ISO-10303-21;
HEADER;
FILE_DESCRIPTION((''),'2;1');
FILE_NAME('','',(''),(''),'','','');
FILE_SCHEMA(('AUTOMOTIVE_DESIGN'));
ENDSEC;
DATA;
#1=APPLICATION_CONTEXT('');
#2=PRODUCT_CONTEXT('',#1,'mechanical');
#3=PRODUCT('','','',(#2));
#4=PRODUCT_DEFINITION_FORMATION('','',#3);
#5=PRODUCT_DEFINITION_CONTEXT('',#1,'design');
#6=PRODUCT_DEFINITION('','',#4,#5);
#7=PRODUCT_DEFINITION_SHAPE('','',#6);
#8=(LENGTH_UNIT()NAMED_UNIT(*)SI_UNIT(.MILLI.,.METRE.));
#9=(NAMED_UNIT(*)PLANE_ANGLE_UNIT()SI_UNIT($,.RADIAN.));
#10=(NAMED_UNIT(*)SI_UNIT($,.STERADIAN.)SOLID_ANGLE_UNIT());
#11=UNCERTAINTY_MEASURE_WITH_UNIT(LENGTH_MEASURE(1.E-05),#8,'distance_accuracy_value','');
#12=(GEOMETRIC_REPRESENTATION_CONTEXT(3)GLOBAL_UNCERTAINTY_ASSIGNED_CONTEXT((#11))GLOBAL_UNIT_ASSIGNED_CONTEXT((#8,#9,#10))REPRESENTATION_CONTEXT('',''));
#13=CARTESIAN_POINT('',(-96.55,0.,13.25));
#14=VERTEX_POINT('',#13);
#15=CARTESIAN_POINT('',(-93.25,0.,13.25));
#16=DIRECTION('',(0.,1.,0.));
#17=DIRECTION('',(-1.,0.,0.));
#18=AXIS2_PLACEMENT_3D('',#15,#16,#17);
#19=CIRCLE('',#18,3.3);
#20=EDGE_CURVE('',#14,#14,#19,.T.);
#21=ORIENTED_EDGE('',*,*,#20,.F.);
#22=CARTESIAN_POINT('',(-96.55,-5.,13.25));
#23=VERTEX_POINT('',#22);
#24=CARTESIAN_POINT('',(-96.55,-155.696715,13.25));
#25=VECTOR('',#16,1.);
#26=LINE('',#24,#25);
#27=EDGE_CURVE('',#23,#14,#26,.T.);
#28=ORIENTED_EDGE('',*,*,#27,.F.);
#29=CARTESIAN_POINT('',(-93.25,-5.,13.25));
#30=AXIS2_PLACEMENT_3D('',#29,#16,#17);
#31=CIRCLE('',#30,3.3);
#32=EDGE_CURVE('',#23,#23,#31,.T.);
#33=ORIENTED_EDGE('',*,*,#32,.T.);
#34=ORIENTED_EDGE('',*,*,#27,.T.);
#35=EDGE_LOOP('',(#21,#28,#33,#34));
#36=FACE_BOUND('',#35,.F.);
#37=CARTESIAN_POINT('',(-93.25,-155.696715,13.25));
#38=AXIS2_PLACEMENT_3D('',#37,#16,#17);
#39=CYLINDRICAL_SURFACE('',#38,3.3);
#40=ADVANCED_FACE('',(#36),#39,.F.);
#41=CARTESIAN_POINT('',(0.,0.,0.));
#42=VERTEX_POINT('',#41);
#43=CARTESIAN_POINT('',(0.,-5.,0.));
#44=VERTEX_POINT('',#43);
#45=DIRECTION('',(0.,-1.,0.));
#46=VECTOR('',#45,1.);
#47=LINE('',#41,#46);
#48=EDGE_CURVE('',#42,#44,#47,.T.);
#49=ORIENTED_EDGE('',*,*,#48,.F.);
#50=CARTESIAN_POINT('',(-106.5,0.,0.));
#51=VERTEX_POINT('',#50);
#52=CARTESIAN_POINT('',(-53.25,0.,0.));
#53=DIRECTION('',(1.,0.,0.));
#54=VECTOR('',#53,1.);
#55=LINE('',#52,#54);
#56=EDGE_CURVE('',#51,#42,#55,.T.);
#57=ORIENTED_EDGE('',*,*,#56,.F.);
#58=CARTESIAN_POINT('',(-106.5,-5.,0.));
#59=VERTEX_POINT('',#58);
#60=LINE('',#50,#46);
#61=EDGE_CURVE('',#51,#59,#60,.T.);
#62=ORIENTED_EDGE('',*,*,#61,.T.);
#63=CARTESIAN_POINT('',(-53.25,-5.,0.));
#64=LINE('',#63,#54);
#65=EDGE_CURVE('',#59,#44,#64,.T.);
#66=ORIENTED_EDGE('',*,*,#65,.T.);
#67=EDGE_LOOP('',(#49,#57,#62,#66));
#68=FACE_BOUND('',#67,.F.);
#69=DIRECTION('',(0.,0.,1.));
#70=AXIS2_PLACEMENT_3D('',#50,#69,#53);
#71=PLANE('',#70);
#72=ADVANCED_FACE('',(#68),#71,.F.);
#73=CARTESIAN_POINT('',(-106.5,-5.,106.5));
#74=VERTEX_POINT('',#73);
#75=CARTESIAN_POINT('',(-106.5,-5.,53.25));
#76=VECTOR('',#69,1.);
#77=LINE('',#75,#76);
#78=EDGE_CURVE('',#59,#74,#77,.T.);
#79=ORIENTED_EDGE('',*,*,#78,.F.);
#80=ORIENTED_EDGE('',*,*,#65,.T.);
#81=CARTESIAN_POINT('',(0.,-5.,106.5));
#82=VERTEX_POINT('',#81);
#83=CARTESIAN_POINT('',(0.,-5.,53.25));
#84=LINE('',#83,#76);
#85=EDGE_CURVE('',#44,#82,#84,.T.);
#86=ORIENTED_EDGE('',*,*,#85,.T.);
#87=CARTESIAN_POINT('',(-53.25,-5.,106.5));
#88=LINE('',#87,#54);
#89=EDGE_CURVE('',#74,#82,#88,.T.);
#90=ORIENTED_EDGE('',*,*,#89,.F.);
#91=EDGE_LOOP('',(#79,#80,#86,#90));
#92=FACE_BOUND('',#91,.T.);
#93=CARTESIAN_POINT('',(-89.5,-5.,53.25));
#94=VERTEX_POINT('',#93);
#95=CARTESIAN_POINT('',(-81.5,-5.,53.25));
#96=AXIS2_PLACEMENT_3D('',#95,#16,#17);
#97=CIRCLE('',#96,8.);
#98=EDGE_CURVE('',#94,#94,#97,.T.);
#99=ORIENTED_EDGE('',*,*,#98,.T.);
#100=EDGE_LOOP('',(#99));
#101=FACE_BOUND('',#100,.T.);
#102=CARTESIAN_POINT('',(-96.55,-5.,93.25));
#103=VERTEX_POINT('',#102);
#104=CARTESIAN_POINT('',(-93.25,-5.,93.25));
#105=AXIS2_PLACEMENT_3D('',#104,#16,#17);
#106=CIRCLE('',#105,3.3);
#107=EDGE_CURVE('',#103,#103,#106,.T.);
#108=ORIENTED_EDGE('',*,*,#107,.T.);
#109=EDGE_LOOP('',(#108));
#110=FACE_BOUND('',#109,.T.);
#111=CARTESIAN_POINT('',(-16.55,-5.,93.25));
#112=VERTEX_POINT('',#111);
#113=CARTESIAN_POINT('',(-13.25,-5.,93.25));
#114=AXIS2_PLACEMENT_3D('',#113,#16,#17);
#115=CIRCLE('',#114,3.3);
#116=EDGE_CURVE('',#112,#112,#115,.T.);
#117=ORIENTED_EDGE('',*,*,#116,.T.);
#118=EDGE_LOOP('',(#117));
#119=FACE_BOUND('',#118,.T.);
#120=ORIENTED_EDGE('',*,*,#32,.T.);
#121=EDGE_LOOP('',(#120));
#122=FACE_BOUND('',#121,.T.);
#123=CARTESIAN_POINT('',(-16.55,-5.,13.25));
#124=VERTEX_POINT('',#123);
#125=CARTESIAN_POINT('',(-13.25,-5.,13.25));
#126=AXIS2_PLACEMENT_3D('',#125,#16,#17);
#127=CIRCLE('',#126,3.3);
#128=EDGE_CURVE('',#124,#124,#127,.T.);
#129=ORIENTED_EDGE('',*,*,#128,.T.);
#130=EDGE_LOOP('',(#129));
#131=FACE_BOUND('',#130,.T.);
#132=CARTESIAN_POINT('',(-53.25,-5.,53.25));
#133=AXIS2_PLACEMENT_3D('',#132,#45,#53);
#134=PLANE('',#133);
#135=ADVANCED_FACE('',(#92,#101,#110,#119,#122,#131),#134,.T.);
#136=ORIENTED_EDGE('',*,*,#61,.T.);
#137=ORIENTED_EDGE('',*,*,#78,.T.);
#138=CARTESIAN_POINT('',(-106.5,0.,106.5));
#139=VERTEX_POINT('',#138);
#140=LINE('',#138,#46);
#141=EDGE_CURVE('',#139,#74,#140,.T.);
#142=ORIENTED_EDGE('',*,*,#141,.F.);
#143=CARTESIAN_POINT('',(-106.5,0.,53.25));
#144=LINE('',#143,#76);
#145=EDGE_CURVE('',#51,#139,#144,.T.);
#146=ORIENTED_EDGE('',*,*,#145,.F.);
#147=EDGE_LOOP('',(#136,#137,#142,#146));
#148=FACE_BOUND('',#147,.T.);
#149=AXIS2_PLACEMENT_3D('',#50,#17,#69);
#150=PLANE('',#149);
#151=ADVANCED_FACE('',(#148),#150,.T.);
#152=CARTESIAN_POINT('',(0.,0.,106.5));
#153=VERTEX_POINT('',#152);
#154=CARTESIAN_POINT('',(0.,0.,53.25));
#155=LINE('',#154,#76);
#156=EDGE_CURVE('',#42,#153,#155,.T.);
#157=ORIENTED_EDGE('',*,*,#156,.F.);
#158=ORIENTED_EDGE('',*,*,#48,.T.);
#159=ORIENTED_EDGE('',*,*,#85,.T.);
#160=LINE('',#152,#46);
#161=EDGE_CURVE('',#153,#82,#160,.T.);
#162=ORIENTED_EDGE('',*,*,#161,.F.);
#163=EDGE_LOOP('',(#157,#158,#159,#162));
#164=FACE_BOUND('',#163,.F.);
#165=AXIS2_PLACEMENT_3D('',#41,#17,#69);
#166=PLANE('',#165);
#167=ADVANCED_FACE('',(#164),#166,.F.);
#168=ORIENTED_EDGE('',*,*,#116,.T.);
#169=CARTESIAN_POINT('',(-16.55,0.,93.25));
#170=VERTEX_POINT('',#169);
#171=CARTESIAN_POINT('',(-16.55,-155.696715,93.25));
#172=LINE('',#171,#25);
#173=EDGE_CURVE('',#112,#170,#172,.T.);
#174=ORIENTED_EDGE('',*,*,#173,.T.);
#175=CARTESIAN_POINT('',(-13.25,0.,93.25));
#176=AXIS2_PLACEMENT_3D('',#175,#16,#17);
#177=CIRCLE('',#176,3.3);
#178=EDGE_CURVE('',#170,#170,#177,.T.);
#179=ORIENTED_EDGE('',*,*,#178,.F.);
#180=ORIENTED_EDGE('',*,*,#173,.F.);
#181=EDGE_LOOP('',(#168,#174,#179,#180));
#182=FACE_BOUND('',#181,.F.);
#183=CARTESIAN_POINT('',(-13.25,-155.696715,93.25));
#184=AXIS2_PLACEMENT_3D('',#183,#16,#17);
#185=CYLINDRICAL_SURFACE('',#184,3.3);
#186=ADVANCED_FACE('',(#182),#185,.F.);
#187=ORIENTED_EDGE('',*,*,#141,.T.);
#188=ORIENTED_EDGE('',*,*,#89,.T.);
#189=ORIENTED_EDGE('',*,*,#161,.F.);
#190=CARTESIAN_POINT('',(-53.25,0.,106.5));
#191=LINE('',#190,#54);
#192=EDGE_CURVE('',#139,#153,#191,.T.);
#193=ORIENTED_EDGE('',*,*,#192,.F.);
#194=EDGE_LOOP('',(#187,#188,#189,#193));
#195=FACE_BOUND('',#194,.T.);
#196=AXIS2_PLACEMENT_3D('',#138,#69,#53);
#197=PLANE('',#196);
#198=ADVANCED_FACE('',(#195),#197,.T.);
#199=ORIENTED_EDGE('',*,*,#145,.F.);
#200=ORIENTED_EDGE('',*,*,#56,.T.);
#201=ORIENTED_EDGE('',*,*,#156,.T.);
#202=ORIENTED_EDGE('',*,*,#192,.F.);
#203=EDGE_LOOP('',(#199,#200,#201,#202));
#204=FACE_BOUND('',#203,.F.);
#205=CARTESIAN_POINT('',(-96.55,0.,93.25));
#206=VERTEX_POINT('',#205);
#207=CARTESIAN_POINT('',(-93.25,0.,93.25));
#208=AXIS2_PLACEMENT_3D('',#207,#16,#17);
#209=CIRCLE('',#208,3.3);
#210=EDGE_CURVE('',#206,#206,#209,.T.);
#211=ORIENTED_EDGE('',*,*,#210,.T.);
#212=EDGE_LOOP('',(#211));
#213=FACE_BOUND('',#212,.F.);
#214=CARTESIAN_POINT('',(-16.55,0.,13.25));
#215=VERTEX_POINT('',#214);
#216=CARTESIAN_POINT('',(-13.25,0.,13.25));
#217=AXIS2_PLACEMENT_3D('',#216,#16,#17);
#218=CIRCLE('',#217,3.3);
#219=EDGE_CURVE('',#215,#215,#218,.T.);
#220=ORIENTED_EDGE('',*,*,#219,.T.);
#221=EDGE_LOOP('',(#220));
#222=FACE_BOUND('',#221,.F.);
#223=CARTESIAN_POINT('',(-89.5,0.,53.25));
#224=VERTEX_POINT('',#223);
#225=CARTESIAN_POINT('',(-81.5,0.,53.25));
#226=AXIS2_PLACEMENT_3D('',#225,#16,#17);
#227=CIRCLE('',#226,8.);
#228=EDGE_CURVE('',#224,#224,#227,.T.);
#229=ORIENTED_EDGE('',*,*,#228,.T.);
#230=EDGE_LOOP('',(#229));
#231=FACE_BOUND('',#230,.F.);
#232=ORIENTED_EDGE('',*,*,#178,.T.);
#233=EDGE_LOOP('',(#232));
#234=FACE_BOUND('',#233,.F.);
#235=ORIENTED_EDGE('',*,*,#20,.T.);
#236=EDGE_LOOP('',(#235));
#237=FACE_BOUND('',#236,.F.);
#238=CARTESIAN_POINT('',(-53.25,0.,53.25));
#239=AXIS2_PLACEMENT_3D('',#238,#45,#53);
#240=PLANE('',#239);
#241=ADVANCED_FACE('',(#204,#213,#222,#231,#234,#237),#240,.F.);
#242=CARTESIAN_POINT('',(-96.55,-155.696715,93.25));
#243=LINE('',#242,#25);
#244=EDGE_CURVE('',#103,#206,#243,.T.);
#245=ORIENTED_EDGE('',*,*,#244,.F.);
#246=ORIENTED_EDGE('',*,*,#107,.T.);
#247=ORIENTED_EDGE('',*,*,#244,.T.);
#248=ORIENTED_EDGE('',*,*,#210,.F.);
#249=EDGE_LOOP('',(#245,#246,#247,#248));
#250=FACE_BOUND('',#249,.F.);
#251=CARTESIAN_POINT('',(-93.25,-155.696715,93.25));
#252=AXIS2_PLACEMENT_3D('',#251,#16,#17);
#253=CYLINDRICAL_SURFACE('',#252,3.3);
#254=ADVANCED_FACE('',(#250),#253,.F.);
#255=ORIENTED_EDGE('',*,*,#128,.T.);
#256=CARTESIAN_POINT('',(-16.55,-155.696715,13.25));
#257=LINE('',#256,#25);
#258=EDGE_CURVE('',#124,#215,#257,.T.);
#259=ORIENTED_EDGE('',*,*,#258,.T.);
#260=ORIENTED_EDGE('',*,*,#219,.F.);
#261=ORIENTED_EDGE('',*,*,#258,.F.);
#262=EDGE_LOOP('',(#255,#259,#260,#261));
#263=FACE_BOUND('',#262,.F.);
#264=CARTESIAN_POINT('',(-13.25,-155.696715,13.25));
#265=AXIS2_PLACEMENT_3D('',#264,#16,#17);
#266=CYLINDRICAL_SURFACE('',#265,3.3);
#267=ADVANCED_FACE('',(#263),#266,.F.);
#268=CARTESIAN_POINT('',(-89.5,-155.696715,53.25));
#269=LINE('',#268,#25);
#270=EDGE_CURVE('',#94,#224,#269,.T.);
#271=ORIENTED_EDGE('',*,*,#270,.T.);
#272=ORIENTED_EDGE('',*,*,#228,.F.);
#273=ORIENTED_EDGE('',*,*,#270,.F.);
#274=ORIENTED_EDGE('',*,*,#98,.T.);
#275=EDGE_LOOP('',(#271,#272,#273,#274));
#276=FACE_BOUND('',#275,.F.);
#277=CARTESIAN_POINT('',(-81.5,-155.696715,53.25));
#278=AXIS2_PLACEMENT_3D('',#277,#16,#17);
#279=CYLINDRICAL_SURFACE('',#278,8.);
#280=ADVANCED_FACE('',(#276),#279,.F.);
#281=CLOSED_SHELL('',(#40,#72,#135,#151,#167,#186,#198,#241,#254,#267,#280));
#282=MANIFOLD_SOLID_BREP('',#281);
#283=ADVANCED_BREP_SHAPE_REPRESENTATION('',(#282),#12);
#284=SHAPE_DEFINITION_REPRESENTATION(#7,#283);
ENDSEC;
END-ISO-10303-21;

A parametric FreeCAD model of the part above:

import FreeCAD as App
import Part
import Sketcher

V = App.Vector
Q = App.Units.Quantity


def add_polygon(sketch, points):
    """Adds a closed chain of lines whose ends are joined by coincident constraints."""
    first, n = sketch.GeometryCount, len(points)
    for a, b in zip(points, points[1:] + points[:1]):
        sketch.addGeometry(Part.LineSegment(App.Vector(*a, 0), App.Vector(*b, 0)), False)
    for i in range(n):
        sketch.addConstraint(Sketcher.Constraint("Coincident", first + i, 2, first + (i + 1) % n, 1))

doc = App.newDocument("Part")
body = doc.addObject("PartDesign::Body", "Body")

# Sketch on XZ plane
sketch1 = body.newObject("Sketcher::SketchObject", "Sketch")
sketch1.AttachmentSupport = (doc.getObject("XZ_Plane"), [""])
sketch1.MapMode = "FlatFace"
add_polygon(sketch1, [(-106, 106), (-106, 0), (0, 0), (0, 106)])  # lines 0-3
sketch1.addConstraint([
    Sketcher.Constraint("Vertical", 0),
    Sketcher.Constraint("Horizontal", 1),
    Sketcher.Constraint("Vertical", 2),
    Sketcher.Constraint("Horizontal", 3),
    Sketcher.Constraint("Coincident", 1, 2, -1, 1),
    Sketcher.Constraint("Equal", 3, 0),
    Sketcher.Constraint("DistanceX", 1, 1, 1, 2, Q("106.5 mm")),
])
pad1 = body.newObject("PartDesign::Pad", "Pad")
pad1.Profile = sketch1
pad1.Length = 5

# Sketch on XZ plane
sketch2 = body.newObject("Sketcher::SketchObject", "Sketch001")
sketch2.AttachmentSupport = (doc.getObject("XZ_Plane"), [""])
sketch2.MapMode = "FlatFace"
sketch2.AttachmentOffset = App.Placement(V(0, 0, 5), App.Rotation())
sketch2.addGeometry([
    Part.Circle(V(-93.2, 93.2, 0), V(0, 0, 1), 3.3),
    Part.Circle(V(-93.2, 13.2, 0), V(0, 0, 1), 3.3),
    Part.Circle(V(-13.2, 13.2, 0), V(0, 0, 1), 3.3),
    Part.Circle(V(-13.2, 93.2, 0), V(0, 0, 1), 3.3),
], False)
sketch2.addConstraint([
    Sketcher.Constraint("Equal", 0, 1),
    Sketcher.Constraint("Equal", 1, 2),
    Sketcher.Constraint("Equal", 2, 3),
    Sketcher.Constraint("Horizontal", 1, 3, 2, 3),
    Sketcher.Constraint("Horizontal", 0, 3, 3, 3),
    Sketcher.Constraint("Vertical", 0, 3, 1, 3),
    Sketcher.Constraint("Vertical", 2, 3, 3, 3),
    Sketcher.Constraint("Diameter", 0, Q("6.6 mm")),
    Sketcher.Constraint("DistanceY", 1, 3, 0, 3, Q("80 mm")),
    Sketcher.Constraint("DistanceX", 1, 3, 2, 3, Q("80 mm")),
    Sketcher.Constraint("DistanceX", 0, 3, -1, 1, Q("93.25 mm")),
    Sketcher.Constraint("DistanceY", -1, 1, 0, 3, Q("93.25 mm")),
])
doc.recompute()
hole = body.newObject("PartDesign::Hole", "Hole")
hole.Profile = sketch2
hole.ThreadType = "None"
hole.Diameter = 6.6
hole.DepthType = "ThroughAll"

# Sketch on XZ plane
sketch3 = body.newObject("Sketcher::SketchObject", "Sketch002")
sketch3.AttachmentSupport = (doc.getObject("XZ_Plane"), [""])
sketch3.MapMode = "FlatFace"
sketch3.AttachmentOffset = App.Placement(V(0, 0, 5), App.Rotation())
sketch3.addGeometry(Part.Circle(V(-82, 53, 0), V(0, 0, 1), 8), False)
sketch3.addConstraint([
    Sketcher.Constraint("Diameter", 0, Q("16 mm")),
    Sketcher.Constraint("DistanceX", 0, 3, -1, 1, Q("81.5 mm")),
    Sketcher.Constraint("DistanceY", -1, 1, 0, 3, Q("53.25 mm")),
])
doc.recompute()
hole2 = body.newObject("PartDesign::Hole", "Hole001")
hole2.Profile = sketch3
hole2.ThreadType = "None"
hole2.Diameter = 16
hole2.DepthType = "ThroughAll"

doc.recompute()
